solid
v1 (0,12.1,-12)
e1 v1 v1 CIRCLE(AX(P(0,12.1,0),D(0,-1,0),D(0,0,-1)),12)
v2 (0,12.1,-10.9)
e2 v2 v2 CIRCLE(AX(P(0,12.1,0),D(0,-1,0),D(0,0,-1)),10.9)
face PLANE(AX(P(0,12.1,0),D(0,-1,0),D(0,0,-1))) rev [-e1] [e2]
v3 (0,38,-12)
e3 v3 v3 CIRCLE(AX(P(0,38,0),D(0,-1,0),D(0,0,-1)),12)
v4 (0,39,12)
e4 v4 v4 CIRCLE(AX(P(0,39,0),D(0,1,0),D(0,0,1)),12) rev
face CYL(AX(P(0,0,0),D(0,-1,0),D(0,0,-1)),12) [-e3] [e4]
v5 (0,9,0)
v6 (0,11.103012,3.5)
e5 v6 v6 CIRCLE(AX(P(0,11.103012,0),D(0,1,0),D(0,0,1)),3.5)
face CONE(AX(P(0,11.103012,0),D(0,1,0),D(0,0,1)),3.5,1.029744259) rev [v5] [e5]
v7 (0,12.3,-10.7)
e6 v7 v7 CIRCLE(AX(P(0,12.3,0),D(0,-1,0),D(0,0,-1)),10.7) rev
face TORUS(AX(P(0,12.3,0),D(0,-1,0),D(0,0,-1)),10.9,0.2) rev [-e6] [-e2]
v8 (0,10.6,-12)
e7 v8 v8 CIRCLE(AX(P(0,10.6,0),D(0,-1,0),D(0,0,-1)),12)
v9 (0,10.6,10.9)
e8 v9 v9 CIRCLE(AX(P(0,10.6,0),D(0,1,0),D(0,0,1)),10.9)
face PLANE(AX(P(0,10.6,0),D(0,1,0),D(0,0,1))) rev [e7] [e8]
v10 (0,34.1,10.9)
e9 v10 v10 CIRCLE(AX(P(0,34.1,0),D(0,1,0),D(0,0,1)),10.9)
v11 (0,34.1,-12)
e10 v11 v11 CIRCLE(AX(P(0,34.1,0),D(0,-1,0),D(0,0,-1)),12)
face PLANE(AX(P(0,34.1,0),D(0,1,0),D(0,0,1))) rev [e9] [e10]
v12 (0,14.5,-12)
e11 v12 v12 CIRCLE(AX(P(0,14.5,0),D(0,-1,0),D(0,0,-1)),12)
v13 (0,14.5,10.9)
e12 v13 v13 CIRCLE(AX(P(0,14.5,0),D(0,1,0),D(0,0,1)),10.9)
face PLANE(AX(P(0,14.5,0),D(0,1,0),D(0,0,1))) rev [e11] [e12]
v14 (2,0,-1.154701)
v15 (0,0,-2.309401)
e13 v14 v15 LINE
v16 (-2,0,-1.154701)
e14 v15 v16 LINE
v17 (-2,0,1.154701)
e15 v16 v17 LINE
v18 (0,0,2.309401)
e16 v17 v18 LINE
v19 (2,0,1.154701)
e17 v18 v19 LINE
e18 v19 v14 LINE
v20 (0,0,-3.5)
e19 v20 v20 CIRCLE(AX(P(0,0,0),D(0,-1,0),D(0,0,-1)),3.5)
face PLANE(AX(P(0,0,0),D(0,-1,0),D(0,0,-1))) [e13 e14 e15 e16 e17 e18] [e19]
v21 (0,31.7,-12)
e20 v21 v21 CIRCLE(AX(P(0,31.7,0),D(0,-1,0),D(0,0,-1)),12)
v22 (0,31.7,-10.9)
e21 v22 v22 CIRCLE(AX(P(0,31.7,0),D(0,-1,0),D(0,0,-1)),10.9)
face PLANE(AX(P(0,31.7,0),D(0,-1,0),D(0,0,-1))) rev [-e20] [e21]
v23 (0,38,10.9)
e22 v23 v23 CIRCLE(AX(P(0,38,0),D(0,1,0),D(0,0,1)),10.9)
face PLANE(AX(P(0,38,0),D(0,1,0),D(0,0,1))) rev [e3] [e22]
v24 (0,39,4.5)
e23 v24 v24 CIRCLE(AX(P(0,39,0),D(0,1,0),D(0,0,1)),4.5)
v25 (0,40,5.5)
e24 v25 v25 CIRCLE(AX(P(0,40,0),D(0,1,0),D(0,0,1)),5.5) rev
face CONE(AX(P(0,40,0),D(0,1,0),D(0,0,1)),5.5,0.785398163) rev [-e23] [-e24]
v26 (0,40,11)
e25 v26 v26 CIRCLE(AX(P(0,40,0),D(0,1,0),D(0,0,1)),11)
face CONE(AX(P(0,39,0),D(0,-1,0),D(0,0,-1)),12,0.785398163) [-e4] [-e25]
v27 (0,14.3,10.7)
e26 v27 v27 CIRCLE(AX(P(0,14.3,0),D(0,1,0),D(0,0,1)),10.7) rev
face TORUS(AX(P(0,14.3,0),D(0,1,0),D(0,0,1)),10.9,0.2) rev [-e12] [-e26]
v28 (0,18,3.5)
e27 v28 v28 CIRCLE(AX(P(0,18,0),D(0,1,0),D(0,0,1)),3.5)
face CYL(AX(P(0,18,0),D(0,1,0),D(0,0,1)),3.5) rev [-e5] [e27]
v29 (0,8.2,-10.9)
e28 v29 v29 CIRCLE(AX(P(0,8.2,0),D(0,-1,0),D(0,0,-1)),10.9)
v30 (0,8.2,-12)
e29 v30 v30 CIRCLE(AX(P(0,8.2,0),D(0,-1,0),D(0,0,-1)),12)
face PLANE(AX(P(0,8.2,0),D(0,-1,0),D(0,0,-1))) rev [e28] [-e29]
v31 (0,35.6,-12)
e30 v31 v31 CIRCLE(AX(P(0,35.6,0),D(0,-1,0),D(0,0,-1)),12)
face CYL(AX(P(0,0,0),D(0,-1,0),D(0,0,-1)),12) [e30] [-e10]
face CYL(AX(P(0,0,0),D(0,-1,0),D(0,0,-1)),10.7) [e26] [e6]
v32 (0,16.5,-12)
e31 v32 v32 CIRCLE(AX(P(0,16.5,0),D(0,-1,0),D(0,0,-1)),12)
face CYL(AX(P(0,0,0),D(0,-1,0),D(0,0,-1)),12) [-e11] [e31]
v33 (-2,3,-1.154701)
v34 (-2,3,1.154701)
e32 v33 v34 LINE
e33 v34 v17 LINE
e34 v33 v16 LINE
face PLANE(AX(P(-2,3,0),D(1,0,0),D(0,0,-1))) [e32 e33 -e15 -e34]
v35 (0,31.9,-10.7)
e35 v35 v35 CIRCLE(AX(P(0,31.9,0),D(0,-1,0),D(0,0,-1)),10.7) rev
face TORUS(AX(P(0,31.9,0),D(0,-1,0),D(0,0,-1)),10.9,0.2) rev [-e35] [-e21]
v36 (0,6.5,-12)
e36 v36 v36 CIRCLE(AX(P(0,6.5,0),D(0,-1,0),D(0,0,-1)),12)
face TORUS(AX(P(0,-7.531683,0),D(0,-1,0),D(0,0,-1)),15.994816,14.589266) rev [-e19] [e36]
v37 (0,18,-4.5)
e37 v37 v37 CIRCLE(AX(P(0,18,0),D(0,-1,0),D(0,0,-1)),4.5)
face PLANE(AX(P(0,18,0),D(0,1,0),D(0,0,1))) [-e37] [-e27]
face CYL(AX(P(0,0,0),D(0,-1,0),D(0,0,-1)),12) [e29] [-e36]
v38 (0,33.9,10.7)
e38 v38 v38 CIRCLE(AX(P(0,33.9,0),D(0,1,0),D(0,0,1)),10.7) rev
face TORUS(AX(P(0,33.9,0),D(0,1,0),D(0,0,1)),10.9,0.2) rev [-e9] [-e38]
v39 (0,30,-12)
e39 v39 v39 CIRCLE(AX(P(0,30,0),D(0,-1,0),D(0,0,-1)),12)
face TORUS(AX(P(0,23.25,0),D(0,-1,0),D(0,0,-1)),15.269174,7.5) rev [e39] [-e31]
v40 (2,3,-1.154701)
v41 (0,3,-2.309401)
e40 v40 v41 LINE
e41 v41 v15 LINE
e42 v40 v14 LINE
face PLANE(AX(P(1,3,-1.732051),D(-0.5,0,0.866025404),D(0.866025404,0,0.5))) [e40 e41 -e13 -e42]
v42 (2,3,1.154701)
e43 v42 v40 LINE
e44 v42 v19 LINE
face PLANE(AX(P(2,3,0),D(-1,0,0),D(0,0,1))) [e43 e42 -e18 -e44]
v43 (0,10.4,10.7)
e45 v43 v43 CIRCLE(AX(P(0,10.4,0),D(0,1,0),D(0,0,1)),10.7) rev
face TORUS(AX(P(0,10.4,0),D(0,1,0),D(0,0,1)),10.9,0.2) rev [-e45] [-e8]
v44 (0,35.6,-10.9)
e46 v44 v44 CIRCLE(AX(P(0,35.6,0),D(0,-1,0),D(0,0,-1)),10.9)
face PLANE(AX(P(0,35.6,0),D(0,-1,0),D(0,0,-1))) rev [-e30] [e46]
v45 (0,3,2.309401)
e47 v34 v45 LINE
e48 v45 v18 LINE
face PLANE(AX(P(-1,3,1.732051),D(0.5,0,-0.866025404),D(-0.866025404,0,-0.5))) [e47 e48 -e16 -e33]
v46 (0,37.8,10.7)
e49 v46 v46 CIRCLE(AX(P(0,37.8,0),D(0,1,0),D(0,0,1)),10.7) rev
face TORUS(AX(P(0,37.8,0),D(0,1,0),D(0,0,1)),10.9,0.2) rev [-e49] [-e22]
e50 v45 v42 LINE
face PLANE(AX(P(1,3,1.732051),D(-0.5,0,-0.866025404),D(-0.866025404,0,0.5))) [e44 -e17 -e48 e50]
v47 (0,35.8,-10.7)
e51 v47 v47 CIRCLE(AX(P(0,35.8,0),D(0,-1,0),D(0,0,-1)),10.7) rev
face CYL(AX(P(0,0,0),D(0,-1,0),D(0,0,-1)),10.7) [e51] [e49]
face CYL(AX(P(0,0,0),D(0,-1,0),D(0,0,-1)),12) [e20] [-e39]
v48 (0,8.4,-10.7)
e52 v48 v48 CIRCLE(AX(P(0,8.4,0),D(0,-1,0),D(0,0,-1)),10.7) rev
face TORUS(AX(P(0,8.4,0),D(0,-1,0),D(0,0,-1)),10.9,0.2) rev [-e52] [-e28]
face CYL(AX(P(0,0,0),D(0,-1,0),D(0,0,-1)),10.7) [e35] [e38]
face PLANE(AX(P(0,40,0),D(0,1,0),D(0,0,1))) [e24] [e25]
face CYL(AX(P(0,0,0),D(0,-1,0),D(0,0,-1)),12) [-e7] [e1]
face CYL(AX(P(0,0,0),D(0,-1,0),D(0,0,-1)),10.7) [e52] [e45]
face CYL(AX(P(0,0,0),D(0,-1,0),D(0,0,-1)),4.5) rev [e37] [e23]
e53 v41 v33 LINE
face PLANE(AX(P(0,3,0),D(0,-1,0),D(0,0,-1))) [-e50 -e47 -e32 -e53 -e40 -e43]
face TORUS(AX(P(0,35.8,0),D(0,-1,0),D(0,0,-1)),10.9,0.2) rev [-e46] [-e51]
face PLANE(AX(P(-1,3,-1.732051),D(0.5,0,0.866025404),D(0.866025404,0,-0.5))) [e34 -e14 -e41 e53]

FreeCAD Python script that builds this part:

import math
import FreeCAD as App
import Part
import Sketcher

V = App.Vector
Q = App.Units.Quantity


def edges_at(feature, points):
    """Names of the edges that pass closest to the given points."""
    edges = feature.Shape.Edges
    near = lambda p: min(range(len(edges)), key=lambda i: edges[i].distToShape(Part.Vertex(*p))[0])
    return sorted({f"Edge{near(p) + 1}" for p in points})

doc = App.newDocument("Part")
params = doc.addObject("Spreadsheet::Sheet", "Params")
for row, (alias, value) in enumerate([
    ("sketch1_radius", "7.5 mm"),
    ("sketch1_height", "2 mm"),
    ("sketch1_height2", "18 mm"),
    ("sketch1_height3", "22 mm"),
    ("sketch1_width", "7.5 mm"),
    ("revolution_angle", "360 deg"),
    ("chamfer_size", "1 mm"),
    ("sketch2_diameter", "7 mm"),
    ("hole_diameter", "7 mm"),
    ("hole_depth", "6.896988 mm"),
    ("pocket1_length", "3 mm"),
    ("fillet_radius", "0.2 mm"),
], start=1):
    params.set(f"A{row}", alias)
    params.set(f"B{row}", "=" + value)
    params.setAlias(f"B{row}", alias)

body = doc.addObject("PartDesign::Body", "Body")

sketch1 = body.newObject("Sketcher::SketchObject", "Sketch")
sketch1.AttachmentSupport = (doc.getObject("XY_Plane"), [""])
sketch1.MapMode = "FlatFace"
sketch1.addGeometry(Part.LineSegment(V(-4.5, 40, 0), V(-12, 40, 0)), False)
sketch1.addGeometry(Part.LineSegment(V(-12, 40, 0), V(-12, 38, 0)), False)
sketch1.addGeometry(Part.LineSegment(V(-12, 38, 0), V(-10.7, 38, 0)), False)
sketch1.addGeometry(Part.LineSegment(V(-10.7, 38, 0), V(-10.7, 35.6, 0)), False)
sketch1.addGeometry(Part.LineSegment(V(-10.7, 35.6, 0), V(-12, 35.6, 0)), False)
sketch1.addGeometry(Part.LineSegment(V(-12, 35.6, 0), V(-12, 34.1, 0)), False)
sketch1.addGeometry(Part.LineSegment(V(-12, 34.1, 0), V(-10.7, 34.1, 0)), False)
sketch1.addGeometry(Part.LineSegment(V(-10.7, 34.1, 0), V(-10.7, 31.7, 0)), False)
sketch1.addGeometry(Part.LineSegment(V(-10.7, 31.7, 0), V(-12, 31.7, 0)), False)
sketch1.addGeometry(Part.LineSegment(V(-12, 31.7, 0), V(-12, 30, 0)), False)
sketch1.addGeometry(Part.ArcOfCircle(Part.Circle(V(-15.269174, 23.25, 0), V(0, 0, 1), 7.5), math.radians(-64.158067), math.radians(64.158067)), False)
sketch1.addGeometry(Part.LineSegment(V(-12, 16.5, 0), V(-12, 14.5, 0)), False)
sketch1.addGeometry(Part.LineSegment(V(-12, 14.5, 0), V(-10.7, 14.5, 0)), False)
sketch1.addGeometry(Part.LineSegment(V(-10.7, 14.5, 0), V(-10.7, 12.1, 0)), False)
sketch1.addGeometry(Part.LineSegment(V(-10.7, 12.1, 0), V(-12, 12.1, 0)), False)
sketch1.addGeometry(Part.LineSegment(V(-12, 12.1, 0), V(-12, 10.6, 0)), False)
sketch1.addGeometry(Part.LineSegment(V(-12, 10.6, 0), V(-10.7, 10.6, 0)), False)
sketch1.addGeometry(Part.LineSegment(V(-10.7, 10.6, 0), V(-10.7, 8.2, 0)), False)
sketch1.addGeometry(Part.LineSegment(V(-10.7, 8.2, 0), V(-12, 8.2, 0)), False)
sketch1.addGeometry(Part.LineSegment(V(-12, 8.2, 0), V(-12, 6.5, 0)), False)
sketch1.addGeometry(Part.ArcOfCircle(Part.Circle(V(-15.994816, -7.531683, 0), V(0, 0, 1), 14.589266), math.radians(31.080926), math.radians(74.108361)), False)
sketch1.addGeometry(Part.LineSegment(V(-3.5, 0, 0), V(0, 0, 0)), False)
sketch1.addGeometry(Part.LineSegment(V(0, 0, 0), V(0, 18, 0)), False)
sketch1.addGeometry(Part.LineSegment(V(0, 18, 0), V(-4.5, 18, 0)), False)
sketch1.addGeometry(Part.LineSegment(V(-4.5, 18, 0), V(-4.5, 40, 0)), False)
sketch1.addConstraint(Sketcher.Constraint("Coincident", 0, 2, 1, 1))
sketch1.addConstraint(Sketcher.Constraint("Coincident", 1, 2, 2, 1))
sketch1.addConstraint(Sketcher.Constraint("Coincident", 2, 2, 3, 1))
sketch1.addConstraint(Sketcher.Constraint("Coincident", 3, 2, 4, 1))
sketch1.addConstraint(Sketcher.Constraint("Coincident", 4, 2, 5, 1))
sketch1.addConstraint(Sketcher.Constraint("Coincident", 5, 2, 6, 1))
sketch1.addConstraint(Sketcher.Constraint("Coincident", 6, 2, 7, 1))
sketch1.addConstraint(Sketcher.Constraint("Coincident", 7, 2, 8, 1))
sketch1.addConstraint(Sketcher.Constraint("Coincident", 8, 2, 9, 1))
sketch1.addConstraint(Sketcher.Constraint("Coincident", 9, 2, 10, 2))
sketch1.addConstraint(Sketcher.Constraint("Coincident", 10, 1, 11, 1))
sketch1.addConstraint(Sketcher.Constraint("Coincident", 11, 2, 12, 1))
sketch1.addConstraint(Sketcher.Constraint("Coincident", 12, 2, 13, 1))
sketch1.addConstraint(Sketcher.Constraint("Coincident", 13, 2, 14, 1))
sketch1.addConstraint(Sketcher.Constraint("Coincident", 14, 2, 15, 1))
sketch1.addConstraint(Sketcher.Constraint("Coincident", 15, 2, 16, 1))
sketch1.addConstraint(Sketcher.Constraint("Coincident", 16, 2, 17, 1))
sketch1.addConstraint(Sketcher.Constraint("Coincident", 17, 2, 18, 1))
sketch1.addConstraint(Sketcher.Constraint("Coincident", 18, 2, 19, 1))
sketch1.addConstraint(Sketcher.Constraint("Coincident", 19, 2, 20, 2))
sketch1.addConstraint(Sketcher.Constraint("Coincident", 20, 1, 21, 1))
sketch1.addConstraint(Sketcher.Constraint("Coincident", 21, 2, 22, 1))
sketch1.addConstraint(Sketcher.Constraint("Coincident", 22, 2, 23, 1))
sketch1.addConstraint(Sketcher.Constraint("Coincident", 23, 2, 24, 1))
sketch1.addConstraint(Sketcher.Constraint("Coincident", 24, 2, 0, 1))
sketch1.addConstraint(Sketcher.Constraint("Horizontal", 0))
sketch1.addConstraint(Sketcher.Constraint("Vertical", 1))
sketch1.addConstraint(Sketcher.Constraint("Horizontal", 2))
sketch1.addConstraint(Sketcher.Constraint("Vertical", 3))
sketch1.addConstraint(Sketcher.Constraint("Horizontal", 4))
sketch1.addConstraint(Sketcher.Constraint("Vertical", 5))
sketch1.addConstraint(Sketcher.Constraint("Horizontal", 6))
sketch1.addConstraint(Sketcher.Constraint("Vertical", 7))
sketch1.addConstraint(Sketcher.Constraint("Horizontal", 8))
sketch1.addConstraint(Sketcher.Constraint("Vertical", 9))
sketch1.addConstraint(Sketcher.Constraint("Vertical", 11))
sketch1.addConstraint(Sketcher.Constraint("Horizontal", 12))
sketch1.addConstraint(Sketcher.Constraint("Vertical", 13))
sketch1.addConstraint(Sketcher.Constraint("Horizontal", 14))
sketch1.addConstraint(Sketcher.Constraint("Vertical", 15))
sketch1.addConstraint(Sketcher.Constraint("Horizontal", 16))
sketch1.addConstraint(Sketcher.Constraint("Vertical", 17))
sketch1.addConstraint(Sketcher.Constraint("Horizontal", 18))
sketch1.addConstraint(Sketcher.Constraint("Vertical", 19))
sketch1.addConstraint(Sketcher.Constraint("Horizontal", 21))
sketch1.addConstraint(Sketcher.Constraint("Vertical", 22))
sketch1.addConstraint(Sketcher.Constraint("Horizontal", 23))
sketch1.addConstraint(Sketcher.Constraint("Vertical", 24))
sketch1.addConstraint(Sketcher.Constraint("Coincident", 21, 2, -1, 1))
sketch1.addConstraint(Sketcher.Constraint("Vertical", 1, 2, 4, 2))
sketch1.addConstraint(Sketcher.Constraint("Vertical", 3, 2, 6, 2))
sketch1.addConstraint(Sketcher.Constraint("Vertical", 5, 2, 8, 2))
sketch1.addConstraint(Sketcher.Constraint("Vertical", 9, 2, 10, 1))
sketch1.addConstraint(Sketcher.Constraint("Vertical", 7, 2, 12, 2))
sketch1.addConstraint(Sketcher.Constraint("Vertical", 11, 2, 14, 2))
sketch1.addConstraint(Sketcher.Constraint("Vertical", 13, 2, 16, 2))
sketch1.addConstraint(Sketcher.Constraint("Vertical", 15, 2, 18, 2))
sketch1.addConstraint(Sketcher.Constraint("Equal", 3, 7))
sketch1.addConstraint(Sketcher.Constraint("Equal", 1, 11))
sketch1.addConstraint(Sketcher.Constraint("Equal", 7, 13))
sketch1.addConstraint(Sketcher.Constraint("Equal", 5, 15))
sketch1.addConstraint(Sketcher.Constraint("Equal", 13, 17))
sketch1.addConstraint(Sketcher.Constraint("Equal", 9, 19))
sketch1.addConstraint(Sketcher.Constraint("Radius", 10, Q("7.5 mm")))
sketch1.addConstraint(Sketcher.Constraint("DistanceY", 1, 2, 1, 1, Q("2 mm")))
sketch1.addConstraint(Sketcher.Constraint("DistanceY", 22, 1, 22, 2, Q("18 mm")))
sketch1.addConstraint(Sketcher.Constraint("DistanceY", 24, 1, 24, 2, Q("22 mm")))
sketch1.addConstraint(Sketcher.Constraint("DistanceX", 0, 2, 0, 1, Q("7.5 mm")))
sketch1.addConstraint(Sketcher.Constraint("DistanceX", 2, 1, 2, 2, Q("1.3 mm")))
sketch1.addConstraint(Sketcher.Constraint("DistanceX", 21, 1, 21, 2, Q("3.5 mm")))
sketch1.addConstraint(Sketcher.Constraint("DistanceX", 23, 2, 23, 1, Q("4.5 mm")))
sketch1.addConstraint(Sketcher.Constraint("DistanceY", 3, 2, 3, 1, Q("2.4 mm")))
sketch1.addConstraint(Sketcher.Constraint("DistanceY", 5, 2, 5, 1, Q("1.5 mm")))
sketch1.addConstraint(Sketcher.Constraint("DistanceY", 9, 2, 9, 1, Q("1.7 mm")))
sketch1.addConstraint(Sketcher.Constraint("DistanceY", -1, 1, 10, 1, Q("16.5 mm")))
sketch1.addConstraint(Sketcher.Constraint("Radius", 20, Q("14.589266 mm")))
sketch1.setExpression("Constraints[63]", "Params.sketch1_radius")
sketch1.setExpression("Constraints[64]", "Params.sketch1_height")
sketch1.setExpression("Constraints[65]", "Params.sketch1_height2")
sketch1.setExpression("Constraints[66]", "Params.sketch1_height3")
sketch1.setExpression("Constraints[67]", "Params.sketch1_width")
revolution = body.newObject("PartDesign::Revolution", "Revolution")
revolution.Profile = sketch1
revolution.ReferenceAxis = (sketch1, ["V_Axis"])
revolution.setExpression("Angle", "Params.revolution_angle")
doc.recompute()

chamfer = body.newObject("PartDesign::Chamfer", "Chamfer")
chamfer.Base = (revolution, edges_at(revolution, [(0, 40, 12), (0, 40, 4.5)]))
chamfer.setExpression("Size", "Params.chamfer_size")

sketch2 = body.newObject("Sketcher::SketchObject", "Sketch001")
sketch2.AttachmentSupport = (doc.getObject("XZ_Plane"), [""])
sketch2.MapMode = "FlatFace"
sketch2.AttachmentOffset = App.Placement(V(0, 0, -18), App.Rotation())
sketch2.addGeometry(Part.Circle(V(0, 0, 0), V(0, 0, 1), 3.5), False)
sketch2.addConstraint(Sketcher.Constraint("Coincident", 0, 3, -1, 1))
sketch2.addConstraint(Sketcher.Constraint("Diameter", 0, Q("7 mm")))
sketch2.setExpression("Constraints[1]", "Params.sketch2_diameter")
doc.recompute()
hole = body.newObject("PartDesign::Hole", "Hole")
hole.Profile = sketch2
hole.ThreadType = "None"
hole.setExpression("Diameter", "Params.hole_diameter")
hole.DepthType = "Dimension"
hole.setExpression("Depth", "Params.hole_depth")
hole.DrillPoint = "Angled"
hole.DrillPointAngle = 118
hole.Reversed = True

sketch3 = body.newObject("Sketcher::SketchObject", "Sketch002")
sketch3.AttachmentSupport = (doc.getObject("XZ_Plane"), [""])
sketch3.MapMode = "FlatFace"
sketch3.addGeometry(Part.LineSegment(V(-2, -1.154701, 0), V(0, -2.309401, 0)), False)
sketch3.addGeometry(Part.LineSegment(V(0, -2.309401, 0), V(2, -1.154701, 0)), False)
sketch3.addGeometry(Part.LineSegment(V(2, -1.154701, 0), V(2, 1.154701, 0)), False)
sketch3.addGeometry(Part.LineSegment(V(2, 1.154701, 0), V(0, 2.309401, 0)), False)
sketch3.addGeometry(Part.LineSegment(V(0, 2.309401, 0), V(-2, 1.154701, 0)), False)
sketch3.addGeometry(Part.LineSegment(V(-2, 1.154701, 0), V(-2, -1.154701, 0)), False)
sketch3.addConstraint(Sketcher.Constraint("Coincident", 0, 2, 1, 1))
sketch3.addConstraint(Sketcher.Constraint("Coincident", 1, 2, 2, 1))
sketch3.addConstraint(Sketcher.Constraint("Coincident", 2, 2, 3, 1))
sketch3.addConstraint(Sketcher.Constraint("Coincident", 3, 2, 4, 1))
sketch3.addConstraint(Sketcher.Constraint("Coincident", 4, 2, 5, 1))
sketch3.addConstraint(Sketcher.Constraint("Coincident", 5, 2, 0, 1))
sketch3.addConstraint(Sketcher.Constraint("Vertical", 2))
sketch3.addConstraint(Sketcher.Constraint("Vertical", 5))
sketch3.addConstraint(Sketcher.Constraint("Symmetric", 0, 2, 3, 2, -1, 1))
sketch3.addConstraint(Sketcher.Constraint("Symmetric", 1, 2, 4, 2, -1, 1))
sketch3.addConstraint(Sketcher.Constraint("PointOnObject", 0, 2, -2))
sketch3.addConstraint(Sketcher.Constraint("Parallel", 0, 3))
sketch3.addConstraint(Sketcher.Constraint("Horizontal", 2, 2, 4, 2))
sketch3.addConstraint(Sketcher.Constraint("Angle", 0, Q("-30 deg")))
sketch3.addConstraint(Sketcher.Constraint("DistanceX", -1, 1, 1, 2, Q("2 mm")))
sketch3.addConstraint(Sketcher.Constraint("DistanceY", 2, 1, 2, 2, Q("2.309401 mm")))
pocket1 = body.newObject("PartDesign::Pocket", "Pocket")
pocket1.Profile = sketch3
pocket1.setExpression("Length", "Params.pocket1_length")
doc.recompute()

fillet = body.newObject("PartDesign::Fillet", "Fillet")
fillet.Base = (pocket1, edges_at(pocket1, [
    (0, 8.2, 10.7),
    (0, 10.6, 10.7),
    (0, 12.1, 10.7),
    (0, 14.5, 10.7),
    (0, 31.7, 10.7),
    (0, 34.1, 10.7),
    (0, 35.6, 10.7),
    (0, 38, 10.7),
]))
fillet.setExpression("Radius", "Params.fillet_radius")

doc.recompute()
